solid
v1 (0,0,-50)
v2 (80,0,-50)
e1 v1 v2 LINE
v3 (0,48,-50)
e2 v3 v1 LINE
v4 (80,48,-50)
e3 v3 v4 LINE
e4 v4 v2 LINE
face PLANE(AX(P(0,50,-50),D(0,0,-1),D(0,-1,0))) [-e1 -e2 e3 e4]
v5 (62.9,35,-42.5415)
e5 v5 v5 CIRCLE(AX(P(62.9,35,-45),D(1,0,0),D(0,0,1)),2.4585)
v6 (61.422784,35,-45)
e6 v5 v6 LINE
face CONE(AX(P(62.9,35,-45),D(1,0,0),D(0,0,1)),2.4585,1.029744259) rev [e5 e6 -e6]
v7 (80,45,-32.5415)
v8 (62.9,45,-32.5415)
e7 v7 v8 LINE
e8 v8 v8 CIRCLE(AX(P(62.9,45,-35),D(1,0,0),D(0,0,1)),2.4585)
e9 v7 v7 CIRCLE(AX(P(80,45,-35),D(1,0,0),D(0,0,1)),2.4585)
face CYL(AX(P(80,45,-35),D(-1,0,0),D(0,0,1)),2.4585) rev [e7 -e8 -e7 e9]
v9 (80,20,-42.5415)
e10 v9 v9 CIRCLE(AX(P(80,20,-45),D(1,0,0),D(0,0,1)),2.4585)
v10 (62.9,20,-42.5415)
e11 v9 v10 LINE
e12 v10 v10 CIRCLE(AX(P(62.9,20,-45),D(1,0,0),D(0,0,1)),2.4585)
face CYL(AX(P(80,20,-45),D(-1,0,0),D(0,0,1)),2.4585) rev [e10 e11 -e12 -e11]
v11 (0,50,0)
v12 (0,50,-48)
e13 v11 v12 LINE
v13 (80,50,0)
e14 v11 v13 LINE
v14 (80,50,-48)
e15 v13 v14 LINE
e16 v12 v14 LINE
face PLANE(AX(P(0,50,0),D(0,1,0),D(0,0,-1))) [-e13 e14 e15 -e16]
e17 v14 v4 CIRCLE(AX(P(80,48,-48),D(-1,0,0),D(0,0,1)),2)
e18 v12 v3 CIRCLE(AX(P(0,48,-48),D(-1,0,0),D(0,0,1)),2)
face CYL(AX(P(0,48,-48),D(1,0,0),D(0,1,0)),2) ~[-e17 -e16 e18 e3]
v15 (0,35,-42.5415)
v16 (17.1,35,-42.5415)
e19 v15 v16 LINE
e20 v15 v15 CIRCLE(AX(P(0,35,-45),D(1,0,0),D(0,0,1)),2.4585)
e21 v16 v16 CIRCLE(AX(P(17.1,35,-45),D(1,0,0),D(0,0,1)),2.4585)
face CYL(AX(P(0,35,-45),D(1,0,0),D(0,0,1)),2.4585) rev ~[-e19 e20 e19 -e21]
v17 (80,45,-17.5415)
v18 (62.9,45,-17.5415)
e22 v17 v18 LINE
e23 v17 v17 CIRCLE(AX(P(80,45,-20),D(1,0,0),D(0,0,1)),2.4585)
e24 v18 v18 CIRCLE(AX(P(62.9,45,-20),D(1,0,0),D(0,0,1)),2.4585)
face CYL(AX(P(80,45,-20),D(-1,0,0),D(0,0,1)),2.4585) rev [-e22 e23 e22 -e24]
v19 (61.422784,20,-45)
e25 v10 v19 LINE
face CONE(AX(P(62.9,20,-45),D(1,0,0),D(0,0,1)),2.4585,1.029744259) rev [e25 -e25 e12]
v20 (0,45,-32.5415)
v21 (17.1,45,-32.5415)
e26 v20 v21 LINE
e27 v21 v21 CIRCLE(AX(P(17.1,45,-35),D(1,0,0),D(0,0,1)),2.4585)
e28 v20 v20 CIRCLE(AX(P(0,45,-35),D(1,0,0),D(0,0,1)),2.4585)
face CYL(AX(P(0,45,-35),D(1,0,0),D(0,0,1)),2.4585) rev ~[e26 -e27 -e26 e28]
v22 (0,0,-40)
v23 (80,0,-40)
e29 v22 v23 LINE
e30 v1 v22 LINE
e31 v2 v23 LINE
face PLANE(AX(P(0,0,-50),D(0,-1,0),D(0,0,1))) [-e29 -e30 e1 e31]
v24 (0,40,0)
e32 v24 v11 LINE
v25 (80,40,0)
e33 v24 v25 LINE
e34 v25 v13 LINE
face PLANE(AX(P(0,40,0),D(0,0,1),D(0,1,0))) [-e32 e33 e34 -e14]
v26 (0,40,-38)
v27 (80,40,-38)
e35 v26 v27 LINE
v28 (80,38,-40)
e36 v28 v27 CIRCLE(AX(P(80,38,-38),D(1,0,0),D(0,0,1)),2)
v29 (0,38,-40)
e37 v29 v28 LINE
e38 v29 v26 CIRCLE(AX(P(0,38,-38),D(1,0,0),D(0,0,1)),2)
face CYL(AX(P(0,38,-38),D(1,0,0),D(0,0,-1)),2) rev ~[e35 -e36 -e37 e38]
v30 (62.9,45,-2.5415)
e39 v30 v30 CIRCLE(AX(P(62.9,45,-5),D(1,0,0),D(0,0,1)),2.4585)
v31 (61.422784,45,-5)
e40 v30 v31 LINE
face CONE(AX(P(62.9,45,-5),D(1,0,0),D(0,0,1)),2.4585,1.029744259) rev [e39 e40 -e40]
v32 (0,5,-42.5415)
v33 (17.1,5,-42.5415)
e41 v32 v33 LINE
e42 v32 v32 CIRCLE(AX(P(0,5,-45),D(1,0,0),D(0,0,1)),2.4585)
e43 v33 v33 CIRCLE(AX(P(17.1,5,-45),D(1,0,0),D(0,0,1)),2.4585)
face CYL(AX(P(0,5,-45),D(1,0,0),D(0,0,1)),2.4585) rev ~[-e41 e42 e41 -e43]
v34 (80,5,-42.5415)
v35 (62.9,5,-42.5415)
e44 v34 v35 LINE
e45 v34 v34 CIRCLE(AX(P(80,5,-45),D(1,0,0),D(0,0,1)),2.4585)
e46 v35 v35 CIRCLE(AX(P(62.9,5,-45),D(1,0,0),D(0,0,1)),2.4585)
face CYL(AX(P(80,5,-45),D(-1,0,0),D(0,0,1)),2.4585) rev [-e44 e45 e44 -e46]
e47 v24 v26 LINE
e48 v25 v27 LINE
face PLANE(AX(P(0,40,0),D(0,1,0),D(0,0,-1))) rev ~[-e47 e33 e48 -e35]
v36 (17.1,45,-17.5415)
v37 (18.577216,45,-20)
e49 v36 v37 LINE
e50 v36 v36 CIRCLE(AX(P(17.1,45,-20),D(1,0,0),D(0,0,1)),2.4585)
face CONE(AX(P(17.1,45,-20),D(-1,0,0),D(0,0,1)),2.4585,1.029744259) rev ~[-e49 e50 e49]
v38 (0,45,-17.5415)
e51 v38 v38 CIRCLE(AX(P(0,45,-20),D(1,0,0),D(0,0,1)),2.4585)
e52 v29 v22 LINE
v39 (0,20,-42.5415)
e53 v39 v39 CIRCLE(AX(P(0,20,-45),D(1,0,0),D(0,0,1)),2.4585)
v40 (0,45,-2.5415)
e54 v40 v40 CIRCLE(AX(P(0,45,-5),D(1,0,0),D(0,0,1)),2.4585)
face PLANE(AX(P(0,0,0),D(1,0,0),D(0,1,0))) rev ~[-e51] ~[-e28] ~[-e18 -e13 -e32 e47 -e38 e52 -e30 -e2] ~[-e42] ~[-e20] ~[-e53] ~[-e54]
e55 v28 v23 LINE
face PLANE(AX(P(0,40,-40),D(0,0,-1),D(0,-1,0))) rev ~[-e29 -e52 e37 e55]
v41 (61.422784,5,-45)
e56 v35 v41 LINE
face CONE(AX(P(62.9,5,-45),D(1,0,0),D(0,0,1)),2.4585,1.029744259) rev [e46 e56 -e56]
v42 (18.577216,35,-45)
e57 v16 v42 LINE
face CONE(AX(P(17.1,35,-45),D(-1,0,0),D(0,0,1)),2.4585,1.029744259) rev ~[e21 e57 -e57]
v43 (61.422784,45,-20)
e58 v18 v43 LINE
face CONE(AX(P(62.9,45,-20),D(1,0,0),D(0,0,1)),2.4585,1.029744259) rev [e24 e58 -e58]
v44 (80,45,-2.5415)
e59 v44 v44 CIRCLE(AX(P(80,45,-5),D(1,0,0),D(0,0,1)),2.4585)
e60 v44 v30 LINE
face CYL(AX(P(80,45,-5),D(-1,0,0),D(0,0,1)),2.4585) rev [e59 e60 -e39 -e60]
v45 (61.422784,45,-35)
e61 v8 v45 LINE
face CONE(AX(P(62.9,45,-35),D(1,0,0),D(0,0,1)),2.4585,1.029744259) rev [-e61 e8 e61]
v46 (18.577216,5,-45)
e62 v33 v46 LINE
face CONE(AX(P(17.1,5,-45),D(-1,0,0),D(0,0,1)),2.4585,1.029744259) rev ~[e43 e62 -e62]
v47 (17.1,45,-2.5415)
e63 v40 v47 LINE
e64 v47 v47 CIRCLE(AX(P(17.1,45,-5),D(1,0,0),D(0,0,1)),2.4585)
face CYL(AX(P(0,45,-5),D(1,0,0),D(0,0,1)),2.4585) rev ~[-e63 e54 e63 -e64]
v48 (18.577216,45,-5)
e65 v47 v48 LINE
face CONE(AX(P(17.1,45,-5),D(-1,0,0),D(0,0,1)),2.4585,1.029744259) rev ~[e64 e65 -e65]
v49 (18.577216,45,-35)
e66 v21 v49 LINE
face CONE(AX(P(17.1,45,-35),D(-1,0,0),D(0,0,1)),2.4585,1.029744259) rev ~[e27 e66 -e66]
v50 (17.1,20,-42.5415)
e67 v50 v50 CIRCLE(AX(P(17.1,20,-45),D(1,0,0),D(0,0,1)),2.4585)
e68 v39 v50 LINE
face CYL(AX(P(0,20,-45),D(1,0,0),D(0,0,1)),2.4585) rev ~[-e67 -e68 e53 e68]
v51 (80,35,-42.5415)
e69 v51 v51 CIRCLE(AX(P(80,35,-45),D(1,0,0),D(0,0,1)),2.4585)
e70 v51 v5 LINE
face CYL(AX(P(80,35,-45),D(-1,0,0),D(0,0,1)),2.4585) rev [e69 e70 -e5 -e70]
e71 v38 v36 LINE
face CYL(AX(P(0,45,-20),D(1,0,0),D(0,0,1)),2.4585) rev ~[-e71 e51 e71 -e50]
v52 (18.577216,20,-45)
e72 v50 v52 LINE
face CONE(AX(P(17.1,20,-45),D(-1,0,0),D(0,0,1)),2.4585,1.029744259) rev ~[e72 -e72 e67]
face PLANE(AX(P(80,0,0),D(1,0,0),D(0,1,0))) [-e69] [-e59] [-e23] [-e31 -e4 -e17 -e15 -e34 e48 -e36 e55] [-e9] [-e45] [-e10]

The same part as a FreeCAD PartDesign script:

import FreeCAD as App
import Part
import Sketcher
from FreeCAD import Vector
Q = App.Units.Quantity


def edges_at(feature, points):
    """Names of the edges that pass closest to the given points."""
    edges = feature.Shape.Edges
    near = lambda p: min(range(len(edges)), key=lambda i: edges[i].distToShape(Part.Vertex(*p))[0])
    return sorted({f"Edge{near(p) + 1}" for p in points})


def add_polygon(sketch, points):
    """Adds a closed chain of lines whose ends are joined by coincident constraints."""
    first, n = sketch.GeometryCount, len(points)
    for a, b in zip(points, points[1:] + points[:1]):
        sketch.addGeometry(Part.LineSegment(App.Vector(*a, 0), App.Vector(*b, 0)), False)
    for i in range(n):
        sketch.addConstraint(Sketcher.Constraint("Coincident", first + i, 2, first + (i + 1) % n, 1))

doc = App.newDocument("Part")
body = doc.addObject("PartDesign::Body", "Body")

sketch1 = body.newObject("Sketcher::SketchObject", "Sketch")
sketch1.AttachmentSupport = (doc.getObject("YZ_Plane"), [""])
sketch1.MapMode = "FlatFace"
add_polygon(sketch1, [(50, 0), (40, 0), (40, -40), (0, -40), (0, -50), (50, -50)])
sketch1.addConstraint(Sketcher.Constraint("Horizontal", 0))
sketch1.addConstraint(Sketcher.Constraint("Vertical", 1))
sketch1.addConstraint(Sketcher.Constraint("Horizontal", 2))
sketch1.addConstraint(Sketcher.Constraint("Vertical", 3))
sketch1.addConstraint(Sketcher.Constraint("Horizontal", 4))
sketch1.addConstraint(Sketcher.Constraint("Vertical", 5))
sketch1.addConstraint(Sketcher.Constraint("PointOnObject", 0, 2, -1))
sketch1.addConstraint(Sketcher.Constraint("PointOnObject", 2, 2, -2))
sketch1.addConstraint(Sketcher.Constraint("Equal", 2, 1))
sketch1.addConstraint(Sketcher.Constraint("Equal", 0, 3))
sketch1.addConstraint(Sketcher.Constraint("DistanceX", 0, 2, 0, 1, Q("10 mm")))
sketch1.addConstraint(Sketcher.Constraint("DistanceX", 4, 1, 4, 2, Q("50 mm")))
pad1 = body.newObject("PartDesign::Pad", "Pad")
pad1.Profile = sketch1
pad1.Length = 80
doc.recompute()

fillet = body.newObject("PartDesign::Fillet", "Fillet")
fillet.Base = (pad1, edges_at(pad1, [(40, 40, -40), (40, 50, -50)]))
fillet.Radius = 2

sketch2 = body.newObject("Sketcher::SketchObject", "Sketch001")
sketch2.AttachmentSupport = (doc.getObject("YZ_Plane"), [""])
sketch2.MapMode = "FlatFace"
sketch2.addGeometry(Part.Circle(Vector(45, -5, 0), Vector(0, 0, 1), 2.4585), False)
sketch2.addGeometry(Part.Circle(Vector(45, -20, 0), Vector(0, 0, 1), 2.4585), False)
sketch2.addGeometry(Part.Circle(Vector(45, -35, 0), Vector(0, 0, 1), 2.4585), False)
sketch2.addGeometry(Part.Circle(Vector(35, -45, 0), Vector(0, 0, 1), 2.4585), False)
sketch2.addGeometry(Part.Circle(Vector(5, -45, 0), Vector(0, 0, 1), 2.4585), False)
sketch2.addGeometry(Part.Circle(Vector(20, -45, 0), Vector(0, 0, 1), 2.4585), False)
sketch2.addConstraint(Sketcher.Constraint("Equal", 0, 1))
sketch2.addConstraint(Sketcher.Constraint("Equal", 1, 2))
sketch2.addConstraint(Sketcher.Constraint("Equal", 2, 3))
sketch2.addConstraint(Sketcher.Constraint("Equal", 3, 4))
sketch2.addConstraint(Sketcher.Constraint("Equal", 4, 5))
sketch2.addConstraint(Sketcher.Constraint("Horizontal", 3, 3, 4, 3))
sketch2.addConstraint(Sketcher.Constraint("Horizontal", 4, 3, 5, 3))
sketch2.addConstraint(Sketcher.Constraint("Vertical", 0, 3, 1, 3))
sketch2.addConstraint(Sketcher.Constraint("Vertical", 1, 3, 2, 3))
sketch2.addConstraint(Sketcher.Constraint("Diameter", 0, Q("4.917 mm")))
sketch2.addConstraint(Sketcher.Constraint("DistanceX", -1, 1, 0, 3, Q("45 mm")))
sketch2.addConstraint(Sketcher.Constraint("DistanceY", 0, 3, -1, 1, Q("5 mm")))
sketch2.addConstraint(Sketcher.Constraint("DistanceY", 1, 3, -1, 1, Q("20 mm")))
sketch2.addConstraint(Sketcher.Constraint("DistanceY", 2, 3, -1, 1, Q("35 mm")))
sketch2.addConstraint(Sketcher.Constraint("DistanceX", -1, 1, 3, 3, Q("35 mm")))
sketch2.addConstraint(Sketcher.Constraint("DistanceY", 3, 3, -1, 1, Q("45 mm")))
sketch2.addConstraint(Sketcher.Constraint("DistanceX", -1, 1, 4, 3, Q("5 mm")))
sketch2.addConstraint(Sketcher.Constraint("DistanceX", -1, 1, 5, 3, Q("20 mm")))
doc.recompute()
hole = body.newObject("PartDesign::Hole", "Hole")
hole.Profile = sketch2
hole.ThreadType = "None"
hole.Diameter = 4.917
hole.DepthType = "Dimension"
hole.Depth = 17.1
hole.DrillPoint = "Angled"
hole.DrillPointAngle = 118
hole.Reversed = True
doc.recompute()

datumplane = body.newObject("PartDesign::Plane", "DatumPlane")
datumplane.AttachmentSupport = (doc.getObject("YZ_Plane"), [""])
datumplane.MapMode = "FlatFace"
datumplane.AttachmentOffset = App.Placement(Vector(0, 0, 40), App.Rotation())
mirrored = body.newObject("PartDesign::Mirrored", "Mirrored")
mirrored.Originals = [hole]
mirrored.MirrorPlane = (datumplane, [""])
body.Tip = mirrored

doc.recompute()
